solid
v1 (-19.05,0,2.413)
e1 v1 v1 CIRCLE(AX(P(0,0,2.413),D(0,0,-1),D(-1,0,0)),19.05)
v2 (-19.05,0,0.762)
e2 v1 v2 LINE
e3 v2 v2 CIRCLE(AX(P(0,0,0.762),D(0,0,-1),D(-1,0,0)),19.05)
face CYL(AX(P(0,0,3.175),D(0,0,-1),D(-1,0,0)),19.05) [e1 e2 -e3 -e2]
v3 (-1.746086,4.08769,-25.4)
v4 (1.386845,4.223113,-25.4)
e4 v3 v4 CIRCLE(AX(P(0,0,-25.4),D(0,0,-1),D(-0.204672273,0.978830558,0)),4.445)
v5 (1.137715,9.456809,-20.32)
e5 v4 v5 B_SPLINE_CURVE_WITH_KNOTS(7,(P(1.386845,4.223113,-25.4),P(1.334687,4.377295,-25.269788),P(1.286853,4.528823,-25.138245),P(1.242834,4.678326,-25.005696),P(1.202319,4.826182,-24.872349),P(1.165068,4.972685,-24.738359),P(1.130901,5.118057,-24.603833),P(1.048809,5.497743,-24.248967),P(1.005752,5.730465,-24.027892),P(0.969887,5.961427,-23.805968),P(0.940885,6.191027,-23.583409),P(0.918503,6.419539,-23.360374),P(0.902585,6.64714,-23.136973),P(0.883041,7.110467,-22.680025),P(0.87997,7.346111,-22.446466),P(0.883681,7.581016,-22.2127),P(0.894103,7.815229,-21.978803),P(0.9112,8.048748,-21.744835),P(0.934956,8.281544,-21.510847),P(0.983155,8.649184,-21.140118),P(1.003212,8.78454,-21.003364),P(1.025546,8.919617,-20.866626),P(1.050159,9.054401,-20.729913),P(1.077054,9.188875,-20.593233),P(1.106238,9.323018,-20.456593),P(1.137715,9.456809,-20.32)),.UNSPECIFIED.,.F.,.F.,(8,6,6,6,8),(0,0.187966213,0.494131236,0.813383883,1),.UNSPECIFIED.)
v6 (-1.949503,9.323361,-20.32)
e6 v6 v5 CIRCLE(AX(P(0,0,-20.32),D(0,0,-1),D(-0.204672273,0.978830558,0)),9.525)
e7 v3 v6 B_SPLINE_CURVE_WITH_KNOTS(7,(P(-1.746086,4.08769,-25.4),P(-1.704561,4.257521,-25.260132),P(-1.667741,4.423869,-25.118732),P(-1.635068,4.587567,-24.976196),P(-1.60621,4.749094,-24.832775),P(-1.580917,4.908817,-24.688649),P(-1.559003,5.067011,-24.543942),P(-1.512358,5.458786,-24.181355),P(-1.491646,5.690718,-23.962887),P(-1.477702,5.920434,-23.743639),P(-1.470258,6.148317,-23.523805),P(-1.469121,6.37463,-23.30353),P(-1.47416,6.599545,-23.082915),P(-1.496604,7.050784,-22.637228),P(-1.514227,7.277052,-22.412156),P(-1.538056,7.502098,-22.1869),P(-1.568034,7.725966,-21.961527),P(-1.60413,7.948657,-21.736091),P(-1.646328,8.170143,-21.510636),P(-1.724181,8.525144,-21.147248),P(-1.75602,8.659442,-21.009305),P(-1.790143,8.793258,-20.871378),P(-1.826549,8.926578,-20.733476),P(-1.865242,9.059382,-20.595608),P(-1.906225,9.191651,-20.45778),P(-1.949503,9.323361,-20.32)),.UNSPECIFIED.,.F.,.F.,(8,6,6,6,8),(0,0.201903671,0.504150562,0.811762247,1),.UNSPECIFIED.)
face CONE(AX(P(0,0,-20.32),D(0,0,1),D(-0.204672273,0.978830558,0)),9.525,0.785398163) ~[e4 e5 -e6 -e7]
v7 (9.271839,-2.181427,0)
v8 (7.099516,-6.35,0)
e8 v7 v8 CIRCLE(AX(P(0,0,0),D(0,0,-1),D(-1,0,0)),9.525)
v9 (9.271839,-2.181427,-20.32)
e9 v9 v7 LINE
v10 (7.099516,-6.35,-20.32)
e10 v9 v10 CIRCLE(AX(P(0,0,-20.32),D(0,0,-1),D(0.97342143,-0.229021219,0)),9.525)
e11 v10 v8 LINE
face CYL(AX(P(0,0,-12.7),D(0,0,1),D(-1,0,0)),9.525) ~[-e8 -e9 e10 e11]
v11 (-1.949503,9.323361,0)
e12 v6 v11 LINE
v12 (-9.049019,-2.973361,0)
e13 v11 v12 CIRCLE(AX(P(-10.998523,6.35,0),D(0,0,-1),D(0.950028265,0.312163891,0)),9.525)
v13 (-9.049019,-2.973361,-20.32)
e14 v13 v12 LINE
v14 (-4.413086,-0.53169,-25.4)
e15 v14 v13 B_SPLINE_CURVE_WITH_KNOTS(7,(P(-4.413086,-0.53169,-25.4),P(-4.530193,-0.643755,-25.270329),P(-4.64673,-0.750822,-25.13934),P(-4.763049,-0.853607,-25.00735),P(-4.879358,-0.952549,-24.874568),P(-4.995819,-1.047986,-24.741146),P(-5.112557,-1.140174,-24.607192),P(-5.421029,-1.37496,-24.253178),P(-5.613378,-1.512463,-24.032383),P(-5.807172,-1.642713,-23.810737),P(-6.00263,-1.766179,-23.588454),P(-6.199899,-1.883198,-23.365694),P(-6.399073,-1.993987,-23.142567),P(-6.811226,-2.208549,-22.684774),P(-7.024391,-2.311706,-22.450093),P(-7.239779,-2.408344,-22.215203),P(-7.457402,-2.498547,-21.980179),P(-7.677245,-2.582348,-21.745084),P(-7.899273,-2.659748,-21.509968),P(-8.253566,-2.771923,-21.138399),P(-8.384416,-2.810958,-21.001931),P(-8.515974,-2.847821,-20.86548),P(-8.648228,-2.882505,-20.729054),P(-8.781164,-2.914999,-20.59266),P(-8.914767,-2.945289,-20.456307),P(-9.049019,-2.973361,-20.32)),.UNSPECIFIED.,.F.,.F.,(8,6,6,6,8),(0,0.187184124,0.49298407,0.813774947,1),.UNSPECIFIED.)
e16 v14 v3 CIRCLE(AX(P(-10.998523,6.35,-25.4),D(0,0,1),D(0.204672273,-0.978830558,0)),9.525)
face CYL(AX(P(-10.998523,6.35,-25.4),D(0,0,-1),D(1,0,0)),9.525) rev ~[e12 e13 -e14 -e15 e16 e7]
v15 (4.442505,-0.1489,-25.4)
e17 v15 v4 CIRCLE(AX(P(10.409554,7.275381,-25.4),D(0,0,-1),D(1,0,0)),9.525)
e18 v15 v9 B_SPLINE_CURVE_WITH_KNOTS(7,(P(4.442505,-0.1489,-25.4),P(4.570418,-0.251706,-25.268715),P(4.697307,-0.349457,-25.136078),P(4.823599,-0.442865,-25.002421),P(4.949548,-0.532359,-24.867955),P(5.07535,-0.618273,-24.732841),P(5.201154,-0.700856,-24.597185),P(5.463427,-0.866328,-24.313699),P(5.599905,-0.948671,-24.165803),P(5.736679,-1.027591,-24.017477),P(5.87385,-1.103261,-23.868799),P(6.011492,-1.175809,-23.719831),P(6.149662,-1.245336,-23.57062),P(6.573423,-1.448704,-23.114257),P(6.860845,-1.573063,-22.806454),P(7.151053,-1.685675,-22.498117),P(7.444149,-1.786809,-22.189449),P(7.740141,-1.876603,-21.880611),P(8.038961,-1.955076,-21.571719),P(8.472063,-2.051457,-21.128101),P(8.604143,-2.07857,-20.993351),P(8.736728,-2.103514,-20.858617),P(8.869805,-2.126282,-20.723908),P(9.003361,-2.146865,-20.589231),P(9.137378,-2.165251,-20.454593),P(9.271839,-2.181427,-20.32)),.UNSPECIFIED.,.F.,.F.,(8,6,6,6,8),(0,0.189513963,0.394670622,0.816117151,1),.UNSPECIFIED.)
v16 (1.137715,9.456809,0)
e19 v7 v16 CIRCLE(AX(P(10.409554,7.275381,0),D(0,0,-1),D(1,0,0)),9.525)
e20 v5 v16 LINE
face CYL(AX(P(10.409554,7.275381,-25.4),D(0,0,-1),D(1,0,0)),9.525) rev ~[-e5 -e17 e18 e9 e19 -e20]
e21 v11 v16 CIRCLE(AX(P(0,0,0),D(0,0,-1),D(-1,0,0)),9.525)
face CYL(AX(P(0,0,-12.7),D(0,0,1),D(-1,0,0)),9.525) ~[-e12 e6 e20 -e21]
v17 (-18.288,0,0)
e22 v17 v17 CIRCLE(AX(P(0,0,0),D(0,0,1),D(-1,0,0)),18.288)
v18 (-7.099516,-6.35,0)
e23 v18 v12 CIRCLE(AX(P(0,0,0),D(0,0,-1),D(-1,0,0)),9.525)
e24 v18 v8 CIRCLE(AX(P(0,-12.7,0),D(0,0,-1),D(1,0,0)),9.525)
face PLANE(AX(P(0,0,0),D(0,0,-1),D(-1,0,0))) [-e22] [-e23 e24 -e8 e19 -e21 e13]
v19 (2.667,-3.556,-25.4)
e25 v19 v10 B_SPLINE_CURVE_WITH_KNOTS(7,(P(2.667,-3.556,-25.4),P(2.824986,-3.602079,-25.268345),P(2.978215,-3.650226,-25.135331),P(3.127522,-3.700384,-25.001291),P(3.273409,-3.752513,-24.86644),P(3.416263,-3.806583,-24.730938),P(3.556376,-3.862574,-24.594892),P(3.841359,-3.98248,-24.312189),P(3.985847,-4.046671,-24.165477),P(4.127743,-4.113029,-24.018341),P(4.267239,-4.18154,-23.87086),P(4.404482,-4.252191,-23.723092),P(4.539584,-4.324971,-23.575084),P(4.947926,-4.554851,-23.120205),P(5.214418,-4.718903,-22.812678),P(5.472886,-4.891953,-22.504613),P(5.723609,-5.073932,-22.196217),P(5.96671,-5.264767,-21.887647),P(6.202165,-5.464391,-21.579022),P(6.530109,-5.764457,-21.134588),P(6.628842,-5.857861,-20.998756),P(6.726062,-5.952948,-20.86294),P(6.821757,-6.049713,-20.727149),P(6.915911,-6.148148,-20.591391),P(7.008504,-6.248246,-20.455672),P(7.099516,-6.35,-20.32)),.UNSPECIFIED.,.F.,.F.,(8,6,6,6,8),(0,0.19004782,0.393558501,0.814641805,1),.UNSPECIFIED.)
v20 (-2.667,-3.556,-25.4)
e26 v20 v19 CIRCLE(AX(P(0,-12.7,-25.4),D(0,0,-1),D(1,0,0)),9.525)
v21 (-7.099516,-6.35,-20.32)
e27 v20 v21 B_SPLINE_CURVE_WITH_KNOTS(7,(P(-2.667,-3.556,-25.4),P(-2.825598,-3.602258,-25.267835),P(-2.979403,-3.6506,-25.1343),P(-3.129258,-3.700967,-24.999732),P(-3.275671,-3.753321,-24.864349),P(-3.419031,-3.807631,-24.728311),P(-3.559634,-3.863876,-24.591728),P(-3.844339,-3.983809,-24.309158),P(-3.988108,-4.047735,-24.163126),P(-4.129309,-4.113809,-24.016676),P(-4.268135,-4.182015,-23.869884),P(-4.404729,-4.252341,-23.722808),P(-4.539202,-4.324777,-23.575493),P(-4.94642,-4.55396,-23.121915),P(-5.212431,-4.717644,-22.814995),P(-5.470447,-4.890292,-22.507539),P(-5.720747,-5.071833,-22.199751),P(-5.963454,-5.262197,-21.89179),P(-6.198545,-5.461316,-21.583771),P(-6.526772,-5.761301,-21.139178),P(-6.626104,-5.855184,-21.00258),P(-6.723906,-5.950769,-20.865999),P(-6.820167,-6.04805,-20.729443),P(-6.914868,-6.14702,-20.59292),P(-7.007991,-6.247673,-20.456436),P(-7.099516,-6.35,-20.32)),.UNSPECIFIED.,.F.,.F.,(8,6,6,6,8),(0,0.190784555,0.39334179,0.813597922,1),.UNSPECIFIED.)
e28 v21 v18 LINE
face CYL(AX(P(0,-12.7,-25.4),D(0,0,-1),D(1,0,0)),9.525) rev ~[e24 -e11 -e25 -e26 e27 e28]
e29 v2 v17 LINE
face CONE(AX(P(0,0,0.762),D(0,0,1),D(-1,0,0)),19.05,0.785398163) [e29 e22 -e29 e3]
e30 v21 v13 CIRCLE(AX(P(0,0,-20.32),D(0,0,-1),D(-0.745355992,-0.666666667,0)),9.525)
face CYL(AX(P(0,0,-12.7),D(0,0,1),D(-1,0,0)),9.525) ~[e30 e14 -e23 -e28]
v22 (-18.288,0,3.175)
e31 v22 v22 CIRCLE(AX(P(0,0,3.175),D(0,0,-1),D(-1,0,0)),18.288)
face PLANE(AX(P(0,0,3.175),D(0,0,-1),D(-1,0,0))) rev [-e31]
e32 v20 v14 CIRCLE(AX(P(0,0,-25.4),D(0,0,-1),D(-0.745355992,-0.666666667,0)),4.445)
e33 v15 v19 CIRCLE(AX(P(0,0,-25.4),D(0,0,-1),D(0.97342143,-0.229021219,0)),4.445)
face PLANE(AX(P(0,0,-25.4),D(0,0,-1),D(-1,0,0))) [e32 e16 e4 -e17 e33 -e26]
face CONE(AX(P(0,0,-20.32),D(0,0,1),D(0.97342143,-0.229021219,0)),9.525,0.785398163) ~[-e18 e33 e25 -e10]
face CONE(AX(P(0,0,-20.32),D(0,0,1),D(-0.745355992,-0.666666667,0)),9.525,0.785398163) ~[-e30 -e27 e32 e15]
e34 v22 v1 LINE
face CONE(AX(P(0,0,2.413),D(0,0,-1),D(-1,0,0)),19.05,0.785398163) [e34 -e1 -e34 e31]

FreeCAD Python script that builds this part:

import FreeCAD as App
import Part
import Sketcher

V = App.Vector
Q = App.Units.Quantity


def edges_at(feature, points):
    """Names of the edges that pass closest to the given points."""
    edges = feature.Shape.Edges
    near = lambda p: min(range(len(edges)), key=lambda i: edges[i].distToShape(Part.Vertex(*p))[0])
    return sorted({f"Edge{near(p) + 1}" for p in points})

doc = App.newDocument("Part")
params = doc.addObject("Spreadsheet::Sheet", "Params")
for row, (alias, value) in enumerate([
    ("sketch1_height", "1 in"),
    ("sketch1_width", "0.75 in"),
    ("sketch1_height2", "1.125 in"),
    ("revolution_angle", "360 deg"),
    ("chamfer_size", "0.03 in"),
    ("sketch2_diameter", "0.75 in"),
    ("pocket1_length", "1 in"),
    ("chamfer2_size", "0.2 in"),
], start=1):
    params.set(f"A{row}", alias)
    params.set(f"B{row}", "=" + value)
    params.setAlias(f"B{row}", alias)

body = doc.addObject("PartDesign::Body", "Body")

# Sketch on XZ plane
sketch1 = body.newObject("Sketcher::SketchObject", "Sketch")
sketch1.AttachmentSupport = (doc.getObject("XZ_Plane"), [""])
sketch1.MapMode = "FlatFace"
sketch1.addGeometry([
    Part.LineSegment(V(-9.525, 0, 0), V(-9.525, -25.4, 0)),  # 0
    Part.LineSegment(V(-9.525, -25.4, 0), V(0, -25.4, 0)),  # 1
    Part.LineSegment(V(0, -25.4, 0), V(0, 3.175, 0)),  # 2
    Part.LineSegment(V(0, 3.175, 0), V(-19.05, 3.175, 0)),  # 3
    Part.LineSegment(V(-19.05, 3.175, 0), V(-19.05, 0, 0)),  # 4
    Part.LineSegment(V(-19.05, 0, 0), V(-9.525, 0, 0)),  # 5
], False)
sketch1.addConstraint([
    Sketcher.Constraint("Coincident", 0, 2, 1, 1),
    Sketcher.Constraint("Coincident", 1, 2, 2, 1),
    Sketcher.Constraint("Coincident", 2, 2, 3, 1),
    Sketcher.Constraint("Coincident", 3, 2, 4, 1),
    Sketcher.Constraint("Coincident", 4, 2, 5, 1),
    Sketcher.Constraint("Coincident", 5, 2, 0, 1),
    Sketcher.Constraint("Vertical", 0),
    Sketcher.Constraint("Horizontal", 1),
    Sketcher.Constraint("Vertical", 2),
    Sketcher.Constraint("Horizontal", 3),
    Sketcher.Constraint("Vertical", 4),
    Sketcher.Constraint("Horizontal", 5),
    Sketcher.Constraint("PointOnObject", 1, 2, -2),
    Sketcher.Constraint("PointOnObject", 4, 2, -1),
    Sketcher.Constraint("Equal", 1, 5),
    Sketcher.Constraint("DistanceY", 0, 2, 0, 1, Q("1 in")),
    Sketcher.Constraint("DistanceX", 3, 2, 3, 1, Q("0.75 in")),
    Sketcher.Constraint("DistanceY", 2, 1, 2, 2, Q("1.125 in")),
])
sketch1.setExpression("Constraints[15]", "Params.sketch1_height")
sketch1.setExpression("Constraints[16]", "Params.sketch1_width")
sketch1.setExpression("Constraints[17]", "Params.sketch1_height2")
revolution = body.newObject("PartDesign::Revolution", "Revolution")
revolution.Profile = sketch1
revolution.ReferenceAxis = (sketch1, ["V_Axis"])
revolution.setExpression("Angle", "Params.revolution_angle")
doc.recompute()

chamfer = body.newObject("PartDesign::Chamfer", "Chamfer")
chamfer.Base = (revolution, edges_at(revolution, [(19.05, 0, 0), (19.05, 0, 3.175)]))
chamfer.setExpression("Size", "Params.chamfer_size")

# Sketch on XY plane
sketch2 = body.newObject("Sketcher::SketchObject", "Sketch001")
sketch2.AttachmentSupport = (doc.getObject("XY_Plane"), [""])
sketch2.MapMode = "FlatFace"
sketch2.AttachmentOffset = App.Placement(V(0, 0, -1 * 25.4), App.Rotation())
sketch2.addGeometry([
    Part.Circle(V(0, -12.7, 0), V(0, 0, 1), 9.525),
    Part.Circle(V(-10.998523, 6.35, 0), V(0, 0, 1), 9.525),
    Part.Circle(V(10.409554, 7.275381, 0), V(0, 0, 1), 9.525),
], False)
sketch2.addConstraint([
    Sketcher.Constraint("Equal", 0, 1),
    Sketcher.Constraint("Equal", 1, 2),
    Sketcher.Constraint("PointOnObject", 0, 3, -2),
    Sketcher.Constraint("Diameter", 0, Q("0.75 in")),
    Sketcher.Constraint("DistanceY", 0, 3, -1, 1, Q("0.5 in")),
    Sketcher.Constraint("DistanceY", -1, 1, 1, 3, Q("0.25 in")),
    Sketcher.Constraint("DistanceY", -1, 1, 2, 3, Q("7.275381 mm")),
    Sketcher.Constraint("DistanceX", 1, 3, -1, 1, Q("10.998523 mm")),
    Sketcher.Constraint("DistanceX", -1, 1, 2, 3, Q("10.409554 mm")),
])
sketch2.setExpression("Constraints[3]", "Params.sketch2_diameter")
pocket1 = body.newObject("PartDesign::Pocket", "Pocket")
pocket1.Profile = sketch2
pocket1.setExpression("Length", "Params.pocket1_length")
pocket1.Reversed = True
doc.recompute()

chamfer2 = body.newObject("PartDesign::Chamfer", "Chamfer001")
chamfer2.Base = (pocket1, edges_at(pocket1, [(-8.249, -4.763, -25.4), (-0.411, 9.516, -25.4), (8.447, -4.402, -25.4)]))
chamfer2.setExpression("Size", "Params.chamfer2_size")

doc.recompute()
